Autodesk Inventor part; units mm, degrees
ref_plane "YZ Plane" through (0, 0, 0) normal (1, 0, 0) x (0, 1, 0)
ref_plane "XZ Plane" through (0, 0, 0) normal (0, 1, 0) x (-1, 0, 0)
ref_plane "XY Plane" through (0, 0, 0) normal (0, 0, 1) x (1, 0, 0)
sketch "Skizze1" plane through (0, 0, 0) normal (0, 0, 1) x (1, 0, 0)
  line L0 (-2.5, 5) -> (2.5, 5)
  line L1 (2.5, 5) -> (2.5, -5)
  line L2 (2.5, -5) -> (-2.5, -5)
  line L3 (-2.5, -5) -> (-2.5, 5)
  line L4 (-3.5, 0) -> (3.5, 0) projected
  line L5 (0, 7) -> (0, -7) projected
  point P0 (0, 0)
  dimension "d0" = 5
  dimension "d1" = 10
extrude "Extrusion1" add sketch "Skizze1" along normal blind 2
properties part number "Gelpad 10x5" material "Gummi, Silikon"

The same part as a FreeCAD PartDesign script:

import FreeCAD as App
import Part
import Sketcher

V = App.Vector
Q = App.Units.Quantity

doc = App.newDocument("Part")
body = doc.addObject("PartDesign::Body", "Body")

sketch1 = body.newObject("Sketcher::SketchObject", "Sketch")
sketch1.AttachmentSupport = (doc.getObject("XY_Plane"), [""])
sketch1.MapMode = "FlatFace"
sketch1.addGeometry([
    Part.LineSegment(V(-2, 5, 0), V(-2, -5, 0)),
    Part.LineSegment(V(-2, -5, 0), V(2, -5, 0)),
    Part.LineSegment(V(2, -5, 0), V(2, 5, 0)),
    Part.LineSegment(V(2, 5, 0), V(-2, 5, 0)),
], False)
sketch1.addConstraint([
    Sketcher.Constraint("Coincident", 0, 2, 1, 1),
    Sketcher.Constraint("Coincident", 1, 2, 2, 1),
    Sketcher.Constraint("Coincident", 2, 2, 3, 1),
    Sketcher.Constraint("Coincident", 3, 2, 0, 1),
    Sketcher.Constraint("Vertical", 0),
    Sketcher.Constraint("Horizontal", 1),
    Sketcher.Constraint("Vertical", 2),
    Sketcher.Constraint("Horizontal", 3),
    Sketcher.Constraint("Symmetric", 0, 2, 2, 2, -1, 1),
    Sketcher.Constraint("DistanceX", 1, 1, 1, 2, Q("5 mm")),
    Sketcher.Constraint("DistanceY", 0, 2, 0, 1, Q("10 mm")),
])
pad1 = body.newObject("PartDesign::Pad", "Pad")
pad1.Profile = sketch1
pad1.Length = 2

doc.recompute()
